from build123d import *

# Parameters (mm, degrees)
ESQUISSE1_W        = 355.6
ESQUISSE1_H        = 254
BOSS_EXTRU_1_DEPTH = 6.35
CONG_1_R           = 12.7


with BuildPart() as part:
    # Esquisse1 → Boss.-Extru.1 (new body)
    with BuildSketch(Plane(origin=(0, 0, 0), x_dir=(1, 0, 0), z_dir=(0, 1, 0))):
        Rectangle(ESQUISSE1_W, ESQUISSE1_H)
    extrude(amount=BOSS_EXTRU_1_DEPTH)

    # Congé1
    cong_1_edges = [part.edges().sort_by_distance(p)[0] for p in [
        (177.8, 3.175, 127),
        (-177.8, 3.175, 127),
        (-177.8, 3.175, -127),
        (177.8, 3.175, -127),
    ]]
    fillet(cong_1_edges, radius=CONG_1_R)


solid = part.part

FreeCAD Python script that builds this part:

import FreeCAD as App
import Part
import Sketcher
from FreeCAD import Vector
Q = App.Units.Quantity


def edges_at(feature, points):
    """Names of the edges that pass closest to the given points."""
    edges = feature.Shape.Edges
    near = lambda p: min(range(len(edges)), key=lambda i: edges[i].distToShape(Part.Vertex(*p))[0])
    return sorted({f"Edge{near(p) + 1}" for p in points})

doc = App.newDocument("Part")
body = doc.addObject("PartDesign::Body", "Body")

# Sketch on XZ plane
sketch1 = doc.addObject("Sketcher::SketchObject", "Sketch")
body.addObject(sketch1)
sketch1.AttachmentSupport = (doc.XZ_Plane, [""])
sketch1.MapMode = "FlatFace"
sketch1.addGeometry([
    Part.LineSegment(Vector(-178, -127, 0), Vector(-178, 127, 0)),
    Part.LineSegment(Vector(-178, 127, 0), Vector(178, 127, 0)),
    Part.LineSegment(Vector(178, 127, 0), Vector(178, -127, 0)),
    Part.LineSegment(Vector(178, -127, 0), Vector(-178, -127, 0)),
], False)
sketch1.addConstraint([
    Sketcher.Constraint("Coincident", 0, 2, 1, 1),
    Sketcher.Constraint("Coincident", 1, 2, 2, 1),
    Sketcher.Constraint("Coincident", 2, 2, 3, 1),
    Sketcher.Constraint("Coincident", 3, 2, 0, 1),
    Sketcher.Constraint("Vertical", 0),
    Sketcher.Constraint("Horizontal", 1),
    Sketcher.Constraint("Vertical", 2),
    Sketcher.Constraint("Horizontal", 3),
    Sketcher.Constraint("Symmetric", 0, 2, 2, 2, -1, 1),
    Sketcher.Constraint("DistanceX", 1, 1, 1, 2, Q("14 in")),
    Sketcher.Constraint("DistanceY", 0, 1, 0, 2, Q("10 in")),
])
pad1 = doc.addObject("PartDesign::Pad", "Pad")
body.addObject(pad1)
pad1.Profile = sketch1
pad1.Length = Q("0.25 in")
pad1.Reversed = True
doc.recompute()

fillet = doc.addObject("PartDesign::Fillet", "Fillet")
body.addObject(fillet)
fillet.Base = (pad1, edges_at(pad1, [
    (177.8, 3.175, 127),
    (-177.8, 3.175, 127),
    (-177.8, 3.175, -127),
    (177.8, 3.175, -127),
]))
fillet.Radius = Q("0.5 in")

doc.recompute()
